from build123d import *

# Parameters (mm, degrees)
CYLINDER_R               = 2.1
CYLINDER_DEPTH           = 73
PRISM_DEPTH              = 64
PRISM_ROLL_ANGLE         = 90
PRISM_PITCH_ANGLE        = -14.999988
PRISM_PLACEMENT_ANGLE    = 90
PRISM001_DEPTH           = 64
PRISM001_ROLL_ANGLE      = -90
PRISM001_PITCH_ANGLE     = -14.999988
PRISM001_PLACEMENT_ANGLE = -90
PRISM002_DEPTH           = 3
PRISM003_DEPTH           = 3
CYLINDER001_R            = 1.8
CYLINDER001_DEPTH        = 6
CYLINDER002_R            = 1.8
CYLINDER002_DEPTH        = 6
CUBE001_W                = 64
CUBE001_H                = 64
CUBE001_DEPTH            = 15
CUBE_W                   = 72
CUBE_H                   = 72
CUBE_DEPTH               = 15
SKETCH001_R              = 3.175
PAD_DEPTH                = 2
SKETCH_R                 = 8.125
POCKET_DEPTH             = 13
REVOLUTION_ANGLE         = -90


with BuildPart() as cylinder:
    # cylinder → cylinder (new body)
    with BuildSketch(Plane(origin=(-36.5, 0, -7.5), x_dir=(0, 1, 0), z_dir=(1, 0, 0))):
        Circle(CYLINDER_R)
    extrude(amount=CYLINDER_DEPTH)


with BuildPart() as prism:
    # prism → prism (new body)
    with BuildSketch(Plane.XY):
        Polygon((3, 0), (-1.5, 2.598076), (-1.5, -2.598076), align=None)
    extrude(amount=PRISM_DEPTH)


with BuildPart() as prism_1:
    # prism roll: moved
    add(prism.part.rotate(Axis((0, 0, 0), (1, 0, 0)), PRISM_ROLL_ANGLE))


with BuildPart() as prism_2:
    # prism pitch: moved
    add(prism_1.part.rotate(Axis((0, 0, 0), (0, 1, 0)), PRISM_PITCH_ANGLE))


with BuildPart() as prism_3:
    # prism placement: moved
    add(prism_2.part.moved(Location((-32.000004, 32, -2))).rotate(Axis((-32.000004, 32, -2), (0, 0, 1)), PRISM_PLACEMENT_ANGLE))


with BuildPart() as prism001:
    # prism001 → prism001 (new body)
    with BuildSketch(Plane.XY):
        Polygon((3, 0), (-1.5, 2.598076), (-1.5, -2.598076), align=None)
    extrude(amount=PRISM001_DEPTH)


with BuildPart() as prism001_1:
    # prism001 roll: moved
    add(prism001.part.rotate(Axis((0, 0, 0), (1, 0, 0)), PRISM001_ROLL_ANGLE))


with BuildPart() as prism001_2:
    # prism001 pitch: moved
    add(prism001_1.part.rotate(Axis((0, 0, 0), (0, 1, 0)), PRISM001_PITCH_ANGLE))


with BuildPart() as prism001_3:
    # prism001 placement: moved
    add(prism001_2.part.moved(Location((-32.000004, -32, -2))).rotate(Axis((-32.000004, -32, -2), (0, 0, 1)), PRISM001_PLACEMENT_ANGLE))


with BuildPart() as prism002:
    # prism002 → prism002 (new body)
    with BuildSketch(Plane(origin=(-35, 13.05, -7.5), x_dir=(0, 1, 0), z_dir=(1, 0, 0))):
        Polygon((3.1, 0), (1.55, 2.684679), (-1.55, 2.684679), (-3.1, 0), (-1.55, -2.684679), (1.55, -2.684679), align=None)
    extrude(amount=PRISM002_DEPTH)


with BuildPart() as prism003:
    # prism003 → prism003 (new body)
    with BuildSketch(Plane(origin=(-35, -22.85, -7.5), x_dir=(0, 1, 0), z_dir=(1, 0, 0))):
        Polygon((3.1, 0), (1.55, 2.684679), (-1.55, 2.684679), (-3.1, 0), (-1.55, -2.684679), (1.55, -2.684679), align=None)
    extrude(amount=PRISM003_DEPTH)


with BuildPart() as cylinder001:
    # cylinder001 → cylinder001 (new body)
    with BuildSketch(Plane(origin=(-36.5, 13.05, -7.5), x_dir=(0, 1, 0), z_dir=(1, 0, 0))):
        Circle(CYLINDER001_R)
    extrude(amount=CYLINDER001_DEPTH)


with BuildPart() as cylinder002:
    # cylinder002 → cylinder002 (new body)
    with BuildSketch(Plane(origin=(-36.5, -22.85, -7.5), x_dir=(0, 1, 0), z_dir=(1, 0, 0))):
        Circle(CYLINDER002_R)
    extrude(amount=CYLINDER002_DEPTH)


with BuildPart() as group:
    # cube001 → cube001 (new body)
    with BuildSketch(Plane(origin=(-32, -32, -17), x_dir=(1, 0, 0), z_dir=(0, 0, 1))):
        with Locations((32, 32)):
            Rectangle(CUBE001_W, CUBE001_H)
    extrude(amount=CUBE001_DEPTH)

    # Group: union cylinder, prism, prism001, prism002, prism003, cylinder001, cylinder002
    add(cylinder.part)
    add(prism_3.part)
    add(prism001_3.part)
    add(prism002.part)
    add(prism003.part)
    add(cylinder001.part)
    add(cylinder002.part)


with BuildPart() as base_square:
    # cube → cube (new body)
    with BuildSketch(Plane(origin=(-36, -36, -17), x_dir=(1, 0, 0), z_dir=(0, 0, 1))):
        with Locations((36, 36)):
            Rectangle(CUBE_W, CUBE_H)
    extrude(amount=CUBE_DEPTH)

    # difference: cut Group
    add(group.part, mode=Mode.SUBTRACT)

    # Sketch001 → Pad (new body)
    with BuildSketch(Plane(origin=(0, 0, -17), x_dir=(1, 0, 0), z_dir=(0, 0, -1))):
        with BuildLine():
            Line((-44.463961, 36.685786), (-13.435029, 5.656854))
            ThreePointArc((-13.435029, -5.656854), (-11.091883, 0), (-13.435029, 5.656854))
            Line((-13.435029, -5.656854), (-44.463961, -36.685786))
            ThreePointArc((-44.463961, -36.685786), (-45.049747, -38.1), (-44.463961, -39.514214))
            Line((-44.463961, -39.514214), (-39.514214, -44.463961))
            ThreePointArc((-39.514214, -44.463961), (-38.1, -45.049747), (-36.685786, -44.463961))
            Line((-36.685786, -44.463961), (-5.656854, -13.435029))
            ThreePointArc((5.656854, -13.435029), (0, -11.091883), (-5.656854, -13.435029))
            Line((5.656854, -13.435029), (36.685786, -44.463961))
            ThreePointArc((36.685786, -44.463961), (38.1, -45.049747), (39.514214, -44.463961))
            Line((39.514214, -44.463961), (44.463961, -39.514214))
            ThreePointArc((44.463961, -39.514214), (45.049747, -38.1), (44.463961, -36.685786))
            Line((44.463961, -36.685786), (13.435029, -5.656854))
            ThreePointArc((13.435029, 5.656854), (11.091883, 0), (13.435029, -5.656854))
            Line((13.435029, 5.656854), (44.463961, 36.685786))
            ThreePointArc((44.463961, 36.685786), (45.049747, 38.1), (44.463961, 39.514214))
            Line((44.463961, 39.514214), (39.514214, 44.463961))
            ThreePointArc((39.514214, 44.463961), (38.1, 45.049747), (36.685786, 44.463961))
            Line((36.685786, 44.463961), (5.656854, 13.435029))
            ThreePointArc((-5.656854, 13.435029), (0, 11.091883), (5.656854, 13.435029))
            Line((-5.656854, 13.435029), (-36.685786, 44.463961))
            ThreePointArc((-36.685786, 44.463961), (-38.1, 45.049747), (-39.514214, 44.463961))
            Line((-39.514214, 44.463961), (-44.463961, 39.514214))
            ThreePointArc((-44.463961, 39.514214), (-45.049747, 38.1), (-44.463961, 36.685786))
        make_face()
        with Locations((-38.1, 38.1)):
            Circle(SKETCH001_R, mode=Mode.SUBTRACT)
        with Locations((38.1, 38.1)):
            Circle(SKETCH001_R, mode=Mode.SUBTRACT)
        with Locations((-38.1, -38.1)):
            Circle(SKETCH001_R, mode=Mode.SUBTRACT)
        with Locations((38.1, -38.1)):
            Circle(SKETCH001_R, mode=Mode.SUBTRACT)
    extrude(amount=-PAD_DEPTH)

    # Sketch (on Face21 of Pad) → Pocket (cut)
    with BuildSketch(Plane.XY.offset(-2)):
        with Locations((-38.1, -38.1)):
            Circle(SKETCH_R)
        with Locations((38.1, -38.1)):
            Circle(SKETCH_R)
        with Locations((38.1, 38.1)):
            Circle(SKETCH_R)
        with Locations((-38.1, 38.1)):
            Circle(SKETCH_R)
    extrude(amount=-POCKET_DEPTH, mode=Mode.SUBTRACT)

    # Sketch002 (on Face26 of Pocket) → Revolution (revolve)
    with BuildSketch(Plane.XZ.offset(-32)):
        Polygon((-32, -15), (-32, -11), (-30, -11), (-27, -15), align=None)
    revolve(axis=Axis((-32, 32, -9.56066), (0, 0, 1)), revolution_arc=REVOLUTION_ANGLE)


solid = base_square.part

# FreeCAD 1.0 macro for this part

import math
import FreeCAD as App
import Part
import Sketcher
from FreeCAD import Vector
Q = App.Units.Quantity


def add_polygon(sketch, points):
    """Adds a closed chain of lines whose ends are joined by coincident constraints."""
    first, n = sketch.GeometryCount, len(points)
    for a, b in zip(points, points[1:] + points[:1]):
        sketch.addGeometry(Part.LineSegment(App.Vector(*a, 0), App.Vector(*b, 0)), False)
    for i in range(n):
        sketch.addConstraint(Sketcher.Constraint("Coincident", first + i, 2, first + (i + 1) % n, 1))

doc = App.newDocument("Part")
body = doc.addObject("PartDesign::Body", "Body")

sketch1 = body.newObject("Sketcher::SketchObject", "Sketch")
sketch1.AttachmentSupport = (doc.getObject("YZ_Plane"), [""])
sketch1.MapMode = "FlatFace"
sketch1.AttachmentOffset = App.Placement(Vector(0, 0, -36.5), App.Rotation())
sketch1.addGeometry(Part.Circle(Vector(0, -7.5, 0), Vector(0, 0, 1), 2.1), False)
sketch1.addConstraint([
    Sketcher.Constraint("PointOnObject", 0, 3, -2),
    Sketcher.Constraint("Diameter", 0, Q("4.2 mm")),
    Sketcher.Constraint("DistanceY", 0, 3, -1, 1, Q("7.5 mm")),
])
pad1 = body.newObject("PartDesign::Pad", "Pad")
pad1.Profile = sketch1
pad1.Length = 73
body2 = doc.addObject("PartDesign::Body", "Body001")

sketch2 = body2.newObject("Sketcher::SketchObject", "Sketch001")
sketch2.AttachmentSupport = (doc.getObject("XY_Plane001"), [""])
sketch2.MapMode = "FlatFace"
add_polygon(sketch2, [(3, 0), (-2, 3), (-2, -3)])
sketch2.addConstraint([
    Sketcher.Constraint("Vertical", 1),
    Sketcher.Constraint("PointOnObject", 2, 2, -1),
    Sketcher.Constraint("Equal", 0, 2),
    Sketcher.Constraint("Angle", 0, Q("150.000002 deg")),
    Sketcher.Constraint("DistanceX", -1, 1, 2, 2, Q("3 mm")),
    Sketcher.Constraint("DistanceX", 0, 2, -1, 1, Q("1.5 mm")),
])
pad2 = body2.newObject("PartDesign::Pad", "Pad001")
pad2.Profile = sketch2
pad2.Length = 64
body3 = doc.addObject("PartDesign::Body", "Body002")
doc.recompute()

body2.Placement = App.Placement(Vector(0, 0, 0), App.Rotation(Vector(1, 0, 0), 90))
boolean = body3.newObject("PartDesign::Boolean", "Boolean")
boolean.Type = "Fuse"
boolean.addObjects([body2])
body4 = doc.addObject("PartDesign::Body", "Body003")
doc.recompute()

body3.Placement = App.Placement(Vector(0, 0, 0), App.Rotation(Vector(0, 1, 0), 345.000012))
boolean2 = body4.newObject("PartDesign::Boolean", "Boolean001")
boolean2.Type = "Fuse"
boolean2.addObjects([body3])
body5 = doc.addObject("PartDesign::Body", "Body004")
doc.recompute()

body4.Placement = App.Placement(Vector(-32.000004, 32, -2), App.Rotation(Vector(0, 0, 1), 90))
boolean3 = body5.newObject("PartDesign::Boolean", "Boolean002")
boolean3.Type = "Fuse"
boolean3.addObjects([body4])
body6 = doc.addObject("PartDesign::Body", "Body005")

sketch3 = body6.newObject("Sketcher::SketchObject", "Sketch002")
sketch3.AttachmentSupport = (doc.getObject("XY_Plane005"), [""])
sketch3.MapMode = "FlatFace"
add_polygon(sketch3, [(3, 0), (-2, 3), (-2, -3)])
sketch3.addConstraint([
    Sketcher.Constraint("Vertical", 1),
    Sketcher.Constraint("PointOnObject", 2, 2, -1),
    Sketcher.Constraint("Equal", 0, 2),
    Sketcher.Constraint("Angle", 0, Q("150.000002 deg")),
    Sketcher.Constraint("DistanceX", -1, 1, 2, 2, Q("3 mm")),
    Sketcher.Constraint("DistanceX", 0, 2, -1, 1, Q("1.5 mm")),
])
pad3 = body6.newObject("PartDesign::Pad", "Pad002")
pad3.Profile = sketch3
pad3.Length = 64
body7 = doc.addObject("PartDesign::Body", "Body006")
doc.recompute()

body6.Placement = App.Placement(Vector(0, 0, 0), App.Rotation(Vector(1, 0, 0), 270))
boolean4 = body7.newObject("PartDesign::Boolean", "Boolean003")
boolean4.Type = "Fuse"
boolean4.addObjects([body6])
body8 = doc.addObject("PartDesign::Body", "Body007")
doc.recompute()

body7.Placement = App.Placement(Vector(0, 0, 0), App.Rotation(Vector(0, 1, 0), 345.000012))
boolean5 = body8.newObject("PartDesign::Boolean", "Boolean004")
boolean5.Type = "Fuse"
boolean5.addObjects([body7])
body9 = doc.addObject("PartDesign::Body", "Body008")
doc.recompute()

body8.Placement = App.Placement(Vector(-32.000004, -32, -2), App.Rotation(Vector(0, 0, 1), 270))
boolean6 = body9.newObject("PartDesign::Boolean", "Boolean005")
boolean6.Type = "Fuse"
boolean6.addObjects([body8])
body10 = doc.addObject("PartDesign::Body", "Body009")

sketch4 = body10.newObject("Sketcher::SketchObject", "Sketch003")
sketch4.AttachmentSupport = (doc.getObject("YZ_Plane009"), [""])
sketch4.MapMode = "FlatFace"
sketch4.AttachmentOffset = App.Placement(Vector(0, 0, -35), App.Rotation())
add_polygon(sketch4, [(16.1, -7.5), (14.6, -4.8), (11.5, -4.8), (9.9, -7.5), (11.5, -10.2), (14.6, -10.2)])
sketch4.addConstraint([
    Sketcher.Constraint("Horizontal", 1),
    Sketcher.Constraint("Horizontal", 4),
    Sketcher.Constraint("Parallel", 0, 3),
    Sketcher.Constraint("Parallel", 2, 5),
    Sketcher.Constraint("Horizontal", 2, 2, 5, 2),
    Sketcher.Constraint("Vertical", 1, 2, 3, 2),
    Sketcher.Constraint("Vertical", 0, 2, 4, 2),
    Sketcher.Constraint("Angle", 0, Q("119.999998 deg")),
    Sketcher.Constraint("DistanceX", 1, 2, 1, 1, Q("3.1 mm")),
    Sketcher.Constraint("Distance", 0, Q("3.1 mm")),
    Sketcher.Constraint("DistanceX", -1, 1, 0, 2, Q("14.6 mm")),
    Sketcher.Constraint("DistanceY", 2, 2, -1, 1, Q("7.5 mm")),
])
pad4 = body10.newObject("PartDesign::Pad", "Pad003")
pad4.Profile = sketch4
pad4.Length = 3
body11 = doc.addObject("PartDesign::Body", "Body010")

sketch5 = body11.newObject("Sketcher::SketchObject", "Sketch004")
sketch5.AttachmentSupport = (doc.getObject("YZ_Plane010"), [""])
sketch5.MapMode = "FlatFace"
sketch5.AttachmentOffset = App.Placement(Vector(0, 0, -35), App.Rotation())
add_polygon(sketch5, [(-19.8, -7.5), (-21.3, -4.8), (-24.4, -4.8), (-25.9, -7.5), (-24.4, -10.2), (-21.3, -10.2)])
sketch5.addConstraint([
    Sketcher.Constraint("Horizontal", 1),
    Sketcher.Constraint("Horizontal", 4),
    Sketcher.Constraint("Parallel", 0, 3),
    Sketcher.Constraint("Parallel", 2, 5),
    Sketcher.Constraint("Horizontal", 2, 2, 5, 2),
    Sketcher.Constraint("Vertical", 1, 2, 3, 2),
    Sketcher.Constraint("Vertical", 0, 2, 4, 2),
    Sketcher.Constraint("Angle", 0, Q("119.999998 deg")),
    Sketcher.Constraint("DistanceX", 1, 2, 1, 1, Q("3.1 mm")),
    Sketcher.Constraint("Distance", 0, Q("3.1 mm")),
    Sketcher.Constraint("DistanceX", 0, 2, -1, 1, Q("21.3 mm")),
    Sketcher.Constraint("DistanceY", 2, 2, -1, 1, Q("7.5 mm")),
])
pad5 = body11.newObject("PartDesign::Pad", "Pad004")
pad5.Profile = sketch5
pad5.Length = 3
body12 = doc.addObject("PartDesign::Body", "Body011")

sketch6 = body12.newObject("Sketcher::SketchObject", "Sketch005")
sketch6.AttachmentSupport = (doc.getObject("YZ_Plane011"), [""])
sketch6.MapMode = "FlatFace"
sketch6.AttachmentOffset = App.Placement(Vector(0, 0, -36.5), App.Rotation())
sketch6.addGeometry(Part.Circle(Vector(13.1, -7.5, 0), Vector(0, 0, 1), 1.8), False)
sketch6.addConstraint([
    Sketcher.Constraint("Diameter", 0, Q("3.6 mm")),
    Sketcher.Constraint("DistanceY", 0, 3, -1, 1, Q("7.5 mm")),
    Sketcher.Constraint("DistanceX", -1, 1, 0, 3, Q("13.05 mm")),
])
pad6 = body12.newObject("PartDesign::Pad", "Pad005")
pad6.Profile = sketch6
pad6.Length = 6
body13 = doc.addObject("PartDesign::Body", "Body012")

sketch7 = body13.newObject("Sketcher::SketchObject", "Sketch006")
sketch7.AttachmentSupport = (doc.getObject("YZ_Plane012"), [""])
sketch7.MapMode = "FlatFace"
sketch7.AttachmentOffset = App.Placement(Vector(0, 0, -36.5), App.Rotation())
sketch7.addGeometry(Part.Circle(Vector(-22.9, -7.5, 0), Vector(0, 0, 1), 1.8), False)
sketch7.addConstraint([
    Sketcher.Constraint("Diameter", 0, Q("3.6 mm")),
    Sketcher.Constraint("DistanceY", 0, 3, -1, 1, Q("7.5 mm")),
    Sketcher.Constraint("DistanceX", 0, 3, -1, 1, Q("22.85 mm")),
])
pad7 = body13.newObject("PartDesign::Pad", "Pad006")
pad7.Profile = sketch7
pad7.Length = 6
body14 = doc.addObject("PartDesign::Body", "Body013")

sketch8 = body14.newObject("Sketcher::SketchObject", "Sketch007")
sketch8.AttachmentSupport = (doc.getObject("XY_Plane013"), [""])
sketch8.MapMode = "FlatFace"
sketch8.AttachmentOffset = App.Placement(Vector(0, 0, -17), App.Rotation())
add_polygon(sketch8, [(-32, 32), (-32, -32), (32, -32), (32, 32)])
sketch8.addConstraint([
    Sketcher.Constraint("Vertical", 0),
    Sketcher.Constraint("Horizontal", 1),
    Sketcher.Constraint("Vertical", 2),
    Sketcher.Constraint("Horizontal", 3),
    Sketcher.Constraint("Symmetric", 0, 2, 2, 2, -1, 1),
    Sketcher.Constraint("Equal", 3, 0),
    Sketcher.Constraint("DistanceX", 1, 1, 1, 2, Q("64 mm")),
])
pad8 = body14.newObject("PartDesign::Pad", "Pad007")
pad8.Profile = sketch8
pad8.Length = 15
doc.recompute()

boolean7 = body14.newObject("PartDesign::Boolean", "Boolean006")
boolean7.Type = "Fuse"
boolean7.addObjects([body])
doc.recompute()

boolean8 = body14.newObject("PartDesign::Boolean", "Boolean007")
boolean8.Type = "Fuse"
boolean8.addObjects([body5])
doc.recompute()

boolean9 = body14.newObject("PartDesign::Boolean", "Boolean008")
boolean9.Type = "Fuse"
boolean9.addObjects([body9])
doc.recompute()

boolean10 = body14.newObject("PartDesign::Boolean", "Boolean009")
boolean10.Type = "Fuse"
boolean10.addObjects([body10])
doc.recompute()

boolean11 = body14.newObject("PartDesign::Boolean", "Boolean010")
boolean11.Type = "Fuse"
boolean11.addObjects([body11])
doc.recompute()

boolean12 = body14.newObject("PartDesign::Boolean", "Boolean011")
boolean12.Type = "Fuse"
boolean12.addObjects([body12])
doc.recompute()

boolean13 = body14.newObject("PartDesign::Boolean", "Boolean012")
boolean13.Type = "Fuse"
boolean13.addObjects([body13])
body15 = doc.addObject("PartDesign::Body", "Body014")

sketch9 = body15.newObject("Sketcher::SketchObject", "Sketch008")
sketch9.AttachmentSupport = (doc.getObject("XY_Plane014"), [""])
sketch9.MapMode = "FlatFace"
sketch9.AttachmentOffset = App.Placement(Vector(0, 0, -17), App.Rotation())
add_polygon(sketch9, [(-36, 36), (-36, -36), (36, -36), (36, 36)])
sketch9.addConstraint([
    Sketcher.Constraint("Vertical", 0),
    Sketcher.Constraint("Horizontal", 1),
    Sketcher.Constraint("Vertical", 2),
    Sketcher.Constraint("Horizontal", 3),
    Sketcher.Constraint("Symmetric", 0, 2, 2, 2, -1, 1),
    Sketcher.Constraint("Equal", 3, 0),
    Sketcher.Constraint("DistanceX", 1, 1, 1, 2, Q("72 mm")),
])
pad9 = body15.newObject("PartDesign::Pad", "Pad008")
pad9.Profile = sketch9
pad9.Length = 15
doc.recompute()

boolean14 = body15.newObject("PartDesign::Boolean", "Boolean013")
boolean14.Type = "Cut"
boolean14.addObjects([body14])

sketch10 = body15.newObject("Sketcher::SketchObject", "Sketch009")
sketch10.AttachmentSupport = (doc.getObject("XY_Plane014"), [""])
sketch10.MapMode = "FlatFace"
sketch10.AttachmentOffset = App.Placement(Vector(0, 0, -17), App.Rotation())
sketch10.addGeometry([
    Part.LineSegment(Vector(-44.5, -36.7, 0), Vector(-13.4, -5.7, 0)),
    Part.ArcOfCircle(Part.Circle(Vector(-19.1, 0, 0), Vector(0, 0, 1), 8), math.radians(-45), math.radians(45)),
    Part.LineSegment(Vector(-13.4, 5.7, 0), Vector(-44.5, 36.7, 0)),
    Part.ArcOfCircle(Part.Circle(Vector(-43, 38.1, 0), Vector(0, 0, 1), 2), math.radians(135), math.radians(225)),
    Part.LineSegment(Vector(-44.5, 39.5, 0), Vector(-39.5, 44.5, 0)),
    Part.ArcOfCircle(Part.Circle(Vector(-38.1, 43, 0), Vector(0, 0, 1), 2), math.radians(45), math.radians(135)),
    Part.LineSegment(Vector(-36.7, 44.5, 0), Vector(-5.7, 13.4, 0)),
    Part.ArcOfCircle(Part.Circle(Vector(0, 19.1, 0), Vector(0, 0, 1), 8), math.radians(-135), math.radians(-45)),
    Part.LineSegment(Vector(5.7, 13.4, 0), Vector(36.7, 44.5, 0)),
    Part.ArcOfCircle(Part.Circle(Vector(38.1, 43, 0), Vector(0, 0, 1), 2), math.radians(45), math.radians(135)),
    Part.LineSegment(Vector(39.5, 44.5, 0), Vector(44.5, 39.5, 0)),
    Part.ArcOfCircle(Part.Circle(Vector(43, 38.1, 0), Vector(0, 0, 1), 2), math.radians(-45), math.radians(45)),
    Part.LineSegment(Vector(44.5, 36.7, 0), Vector(13.4, 5.7, 0)),
    Part.ArcOfCircle(Part.Circle(Vector(19.1, 0, 0), Vector(0, 0, 1), 8), math.radians(135), math.radians(225)),
    Part.LineSegment(Vector(13.4, -5.7, 0), Vector(44.5, -36.7, 0)),
    Part.ArcOfCircle(Part.Circle(Vector(43, -38.1, 0), Vector(0, 0, 1), 2), math.radians(-45), math.radians(45)),
    Part.LineSegment(Vector(44.5, -39.5, 0), Vector(39.5, -44.5, 0)),
    Part.ArcOfCircle(Part.Circle(Vector(38.1, -43, 0), Vector(0, 0, 1), 2), math.radians(-135), math.radians(-45)),
    Part.LineSegment(Vector(36.7, -44.5, 0), Vector(5.7, -13.4, 0)),
    Part.ArcOfCircle(Part.Circle(Vector(0, -19.1, 0), Vector(0, 0, 1), 8), math.radians(45), math.radians(135)),
    Part.LineSegment(Vector(-5.7, -13.4, 0), Vector(-36.7, -44.5, 0)),
    Part.ArcOfCircle(Part.Circle(Vector(-38.1, -43, 0), Vector(0, 0, 1), 2), math.radians(-135), math.radians(-45)),
    Part.LineSegment(Vector(-39.5, -44.5, 0), Vector(-44.5, -39.5, 0)),
    Part.ArcOfCircle(Part.Circle(Vector(-43, -38.1, 0), Vector(0, 0, 1), 2), math.radians(135), math.radians(225)),
    Part.Circle(Vector(-38.1, 38.1, 0), Vector(0, 0, 1), 3.2),
    Part.Circle(Vector(38.1, 38.1, 0), Vector(0, 0, 1), 3.2),
    Part.Circle(Vector(-38.1, -38.1, 0), Vector(0, 0, 1), 3.2),
    Part.Circle(Vector(38.1, -38.1, 0), Vector(0, 0, 1), 3.2),
], False)
sketch10.addConstraint([
    Sketcher.Constraint("Tangent", 0, 2, 1, 1),
    Sketcher.Constraint("Tangent", 1, 2, 2, 1),
    Sketcher.Constraint("Tangent", 2, 2, 3, 2),
    Sketcher.Constraint("Tangent", 3, 1, 4, 1),
    Sketcher.Constraint("Tangent", 4, 2, 5, 2),
    Sketcher.Constraint("Tangent", 5, 1, 6, 1),
    Sketcher.Constraint("Tangent", 6, 2, 7, 1),
    Sketcher.Constraint("Tangent", 7, 2, 8, 1),
    Sketcher.Constraint("Tangent", 8, 2, 9, 2),
    Sketcher.Constraint("Tangent", 9, 1, 10, 1),
    Sketcher.Constraint("Tangent", 10, 2, 11, 2),
    Sketcher.Constraint("Tangent", 11, 1, 12, 1),
    Sketcher.Constraint("Tangent", 12, 2, 13, 1),
    Sketcher.Constraint("Tangent", 13, 2, 14, 1),
    Sketcher.Constraint("Tangent", 14, 2, 15, 2),
    Sketcher.Constraint("Tangent", 15, 1, 16, 1),
    Sketcher.Constraint("Tangent", 16, 2, 17, 2),
    Sketcher.Constraint("Tangent", 17, 1, 18, 1),
    Sketcher.Constraint("Tangent", 18, 2, 19, 1),
    Sketcher.Constraint("Tangent", 19, 2, 20, 1),
    Sketcher.Constraint("Tangent", 20, 2, 21, 2),
    Sketcher.Constraint("Tangent", 21, 1, 22, 1),
    Sketcher.Constraint("Tangent", 22, 2, 23, 2),
    Sketcher.Constraint("Tangent", 23, 1, 0, 1),
    Sketcher.Constraint("Equal", 3, 5),
    Sketcher.Constraint("Equal", 1, 7),
    Sketcher.Constraint("Equal", 5, 9),
    Sketcher.Constraint("Equal", 9, 11),
    Sketcher.Constraint("Equal", 7, 13),
    Sketcher.Constraint("Equal", 11, 15),
    Sketcher.Constraint("Equal", 15, 17),
    Sketcher.Constraint("Equal", 13, 19),
    Sketcher.Constraint("Equal", 17, 21),
    Sketcher.Constraint("Equal", 21, 23),
    Sketcher.Constraint("Equal", 24, 25),
    Sketcher.Constraint("Equal", 25, 26),
    Sketcher.Constraint("Equal", 26, 27),
    Sketcher.Constraint("Symmetric", 1, 3, 13, 3, -1, 1),
    Sketcher.Constraint("Symmetric", 3, 3, 15, 3, -1, 1),
    Sketcher.Constraint("Symmetric", 5, 3, 17, 3, -1, 1),
    Sketcher.Constraint("Symmetric", 7, 3, 19, 3, -1, 1),
    Sketcher.Constraint("Symmetric", 9, 3, 21, 3, -1, 1),
    Sketcher.Constraint("Symmetric", 11, 3, 23, 3, -1, 1),
    Sketcher.Constraint("Symmetric", 25, 3, 26, 3, -1, 1),
    Sketcher.Constraint("Symmetric", 24, 3, 27, 3, -1, 1),
    Sketcher.Constraint("Symmetric", 5, 3, 9, 3, -2),
    Sketcher.Constraint("Symmetric", 3, 3, 11, 3, -2),
    Sketcher.Constraint("Symmetric", 24, 3, 25, 3, -2),
    Sketcher.Constraint("PointOnObject", 1, 3, -1),
    Sketcher.Constraint("PointOnObject", 7, 3, -2),
    Sketcher.Constraint("Perpendicular", 0, 2),
    Sketcher.Constraint("Perpendicular", 2, 4),
    Sketcher.Constraint("Perpendicular", 4, 6),
    Sketcher.Constraint("Horizontal", 11, 3, 24, 3),
    Sketcher.Constraint("Vertical", 21, 3, 24, 3),
    Sketcher.Constraint("Equal", 2, 6),
    Sketcher.Constraint("Radius", 1, Q("7.999999 mm")),
    Sketcher.Constraint("Diameter", 24, Q("6.35 mm")),
    Sketcher.Constraint("Distance", 4, Q("6.999999 mm")),
    Sketcher.Constraint("DistanceY", -1, 1, 3, 3, Q("38.1 mm")),
    Sketcher.Constraint("Radius", 3, Q("2.000002 mm")),
])
pad10 = body15.newObject("PartDesign::Pad", "Pad009")
pad10.Profile = sketch10
pad10.Length = 2

sketch11 = body15.newObject("Sketcher::SketchObject", "Sketch010")
sketch11.AttachmentSupport = (doc.getObject("XY_Plane014"), [""])
sketch11.MapMode = "FlatFace"
sketch11.AttachmentOffset = App.Placement(Vector(0, 0, -2), App.Rotation())
sketch11.addGeometry([
    Part.Circle(Vector(-38, -38, 0), Vector(0, 0, 1), 8),
    Part.Circle(Vector(38, -38, 0), Vector(0, 0, 1), 8),
    Part.Circle(Vector(38, 38, 0), Vector(0, 0, 1), 8),
    Part.Circle(Vector(-38, 38, 0), Vector(0, 0, 1), 8),
], False)
sketch11.addConstraint([
    Sketcher.Constraint("Equal", 0, 1),
    Sketcher.Constraint("Equal", 1, 2),
    Sketcher.Constraint("Equal", 2, 3),
    Sketcher.Constraint("Symmetric", 0, 3, 2, 3, -1, 1),
    Sketcher.Constraint("Symmetric", 1, 3, 3, 3, -1, 1),
    Sketcher.Constraint("Symmetric", 0, 3, 1, 3, -2),
    Sketcher.Constraint("Diameter", 0, Q("16.25 mm")),
    Sketcher.Constraint("DistanceX", 0, 3, -1, 1, Q("38.1 mm")),
    Sketcher.Constraint("DistanceY", 0, 3, -1, 1, Q("38.1 mm")),
])
pocket1 = body15.newObject("PartDesign::Pocket", "Pocket")
pocket1.Profile = sketch11
pocket1.Length = 13

sketch12 = body15.newObject("Sketcher::SketchObject", "Sketch011")
sketch12.AttachmentSupport = (doc.getObject("XZ_Plane014"), [""])
sketch12.MapMode = "FlatFace"
sketch12.AttachmentOffset = App.Placement(Vector(0, 0, -32), App.Rotation())
add_polygon(sketch12, [(-32, -11), (-32, -15), (-27, -15), (-30, -11)])
sketch12.addGeometry(Part.LineSegment(Vector(-32, -15, 0), Vector(-32, -11, 0)), True)
sketch12.addConstraint([
    Sketcher.Constraint("Vertical", 0),
    Sketcher.Constraint("Horizontal", 1),
    Sketcher.Constraint("Horizontal", 3),
    Sketcher.Constraint("Vertical", 4),
    Sketcher.Constraint("Coincident", 4, 1, 0, 2),
    Sketcher.Constraint("Horizontal", 2, 2, 4, 2),
    Sketcher.Constraint("DistanceX", 1, 1, 1, 2, Q("5 mm")),
    Sketcher.Constraint("DistanceX", 3, 2, 3, 1, Q("2 mm")),
    Sketcher.Constraint("DistanceY", 0, 2, 0, 1, Q("4 mm")),
    Sketcher.Constraint("DistanceX", 0, 2, -1, 1, Q("32 mm")),
    Sketcher.Constraint("DistanceY", 0, 2, -1, 1, Q("15 mm")),
])
revolution = body15.newObject("PartDesign::Revolution", "Revolution")
revolution.Profile = sketch12
revolution.ReferenceAxis = (sketch12, ["Axis0"])
revolution.Angle = 90
revolution.Reversed = True

doc.recompute()
